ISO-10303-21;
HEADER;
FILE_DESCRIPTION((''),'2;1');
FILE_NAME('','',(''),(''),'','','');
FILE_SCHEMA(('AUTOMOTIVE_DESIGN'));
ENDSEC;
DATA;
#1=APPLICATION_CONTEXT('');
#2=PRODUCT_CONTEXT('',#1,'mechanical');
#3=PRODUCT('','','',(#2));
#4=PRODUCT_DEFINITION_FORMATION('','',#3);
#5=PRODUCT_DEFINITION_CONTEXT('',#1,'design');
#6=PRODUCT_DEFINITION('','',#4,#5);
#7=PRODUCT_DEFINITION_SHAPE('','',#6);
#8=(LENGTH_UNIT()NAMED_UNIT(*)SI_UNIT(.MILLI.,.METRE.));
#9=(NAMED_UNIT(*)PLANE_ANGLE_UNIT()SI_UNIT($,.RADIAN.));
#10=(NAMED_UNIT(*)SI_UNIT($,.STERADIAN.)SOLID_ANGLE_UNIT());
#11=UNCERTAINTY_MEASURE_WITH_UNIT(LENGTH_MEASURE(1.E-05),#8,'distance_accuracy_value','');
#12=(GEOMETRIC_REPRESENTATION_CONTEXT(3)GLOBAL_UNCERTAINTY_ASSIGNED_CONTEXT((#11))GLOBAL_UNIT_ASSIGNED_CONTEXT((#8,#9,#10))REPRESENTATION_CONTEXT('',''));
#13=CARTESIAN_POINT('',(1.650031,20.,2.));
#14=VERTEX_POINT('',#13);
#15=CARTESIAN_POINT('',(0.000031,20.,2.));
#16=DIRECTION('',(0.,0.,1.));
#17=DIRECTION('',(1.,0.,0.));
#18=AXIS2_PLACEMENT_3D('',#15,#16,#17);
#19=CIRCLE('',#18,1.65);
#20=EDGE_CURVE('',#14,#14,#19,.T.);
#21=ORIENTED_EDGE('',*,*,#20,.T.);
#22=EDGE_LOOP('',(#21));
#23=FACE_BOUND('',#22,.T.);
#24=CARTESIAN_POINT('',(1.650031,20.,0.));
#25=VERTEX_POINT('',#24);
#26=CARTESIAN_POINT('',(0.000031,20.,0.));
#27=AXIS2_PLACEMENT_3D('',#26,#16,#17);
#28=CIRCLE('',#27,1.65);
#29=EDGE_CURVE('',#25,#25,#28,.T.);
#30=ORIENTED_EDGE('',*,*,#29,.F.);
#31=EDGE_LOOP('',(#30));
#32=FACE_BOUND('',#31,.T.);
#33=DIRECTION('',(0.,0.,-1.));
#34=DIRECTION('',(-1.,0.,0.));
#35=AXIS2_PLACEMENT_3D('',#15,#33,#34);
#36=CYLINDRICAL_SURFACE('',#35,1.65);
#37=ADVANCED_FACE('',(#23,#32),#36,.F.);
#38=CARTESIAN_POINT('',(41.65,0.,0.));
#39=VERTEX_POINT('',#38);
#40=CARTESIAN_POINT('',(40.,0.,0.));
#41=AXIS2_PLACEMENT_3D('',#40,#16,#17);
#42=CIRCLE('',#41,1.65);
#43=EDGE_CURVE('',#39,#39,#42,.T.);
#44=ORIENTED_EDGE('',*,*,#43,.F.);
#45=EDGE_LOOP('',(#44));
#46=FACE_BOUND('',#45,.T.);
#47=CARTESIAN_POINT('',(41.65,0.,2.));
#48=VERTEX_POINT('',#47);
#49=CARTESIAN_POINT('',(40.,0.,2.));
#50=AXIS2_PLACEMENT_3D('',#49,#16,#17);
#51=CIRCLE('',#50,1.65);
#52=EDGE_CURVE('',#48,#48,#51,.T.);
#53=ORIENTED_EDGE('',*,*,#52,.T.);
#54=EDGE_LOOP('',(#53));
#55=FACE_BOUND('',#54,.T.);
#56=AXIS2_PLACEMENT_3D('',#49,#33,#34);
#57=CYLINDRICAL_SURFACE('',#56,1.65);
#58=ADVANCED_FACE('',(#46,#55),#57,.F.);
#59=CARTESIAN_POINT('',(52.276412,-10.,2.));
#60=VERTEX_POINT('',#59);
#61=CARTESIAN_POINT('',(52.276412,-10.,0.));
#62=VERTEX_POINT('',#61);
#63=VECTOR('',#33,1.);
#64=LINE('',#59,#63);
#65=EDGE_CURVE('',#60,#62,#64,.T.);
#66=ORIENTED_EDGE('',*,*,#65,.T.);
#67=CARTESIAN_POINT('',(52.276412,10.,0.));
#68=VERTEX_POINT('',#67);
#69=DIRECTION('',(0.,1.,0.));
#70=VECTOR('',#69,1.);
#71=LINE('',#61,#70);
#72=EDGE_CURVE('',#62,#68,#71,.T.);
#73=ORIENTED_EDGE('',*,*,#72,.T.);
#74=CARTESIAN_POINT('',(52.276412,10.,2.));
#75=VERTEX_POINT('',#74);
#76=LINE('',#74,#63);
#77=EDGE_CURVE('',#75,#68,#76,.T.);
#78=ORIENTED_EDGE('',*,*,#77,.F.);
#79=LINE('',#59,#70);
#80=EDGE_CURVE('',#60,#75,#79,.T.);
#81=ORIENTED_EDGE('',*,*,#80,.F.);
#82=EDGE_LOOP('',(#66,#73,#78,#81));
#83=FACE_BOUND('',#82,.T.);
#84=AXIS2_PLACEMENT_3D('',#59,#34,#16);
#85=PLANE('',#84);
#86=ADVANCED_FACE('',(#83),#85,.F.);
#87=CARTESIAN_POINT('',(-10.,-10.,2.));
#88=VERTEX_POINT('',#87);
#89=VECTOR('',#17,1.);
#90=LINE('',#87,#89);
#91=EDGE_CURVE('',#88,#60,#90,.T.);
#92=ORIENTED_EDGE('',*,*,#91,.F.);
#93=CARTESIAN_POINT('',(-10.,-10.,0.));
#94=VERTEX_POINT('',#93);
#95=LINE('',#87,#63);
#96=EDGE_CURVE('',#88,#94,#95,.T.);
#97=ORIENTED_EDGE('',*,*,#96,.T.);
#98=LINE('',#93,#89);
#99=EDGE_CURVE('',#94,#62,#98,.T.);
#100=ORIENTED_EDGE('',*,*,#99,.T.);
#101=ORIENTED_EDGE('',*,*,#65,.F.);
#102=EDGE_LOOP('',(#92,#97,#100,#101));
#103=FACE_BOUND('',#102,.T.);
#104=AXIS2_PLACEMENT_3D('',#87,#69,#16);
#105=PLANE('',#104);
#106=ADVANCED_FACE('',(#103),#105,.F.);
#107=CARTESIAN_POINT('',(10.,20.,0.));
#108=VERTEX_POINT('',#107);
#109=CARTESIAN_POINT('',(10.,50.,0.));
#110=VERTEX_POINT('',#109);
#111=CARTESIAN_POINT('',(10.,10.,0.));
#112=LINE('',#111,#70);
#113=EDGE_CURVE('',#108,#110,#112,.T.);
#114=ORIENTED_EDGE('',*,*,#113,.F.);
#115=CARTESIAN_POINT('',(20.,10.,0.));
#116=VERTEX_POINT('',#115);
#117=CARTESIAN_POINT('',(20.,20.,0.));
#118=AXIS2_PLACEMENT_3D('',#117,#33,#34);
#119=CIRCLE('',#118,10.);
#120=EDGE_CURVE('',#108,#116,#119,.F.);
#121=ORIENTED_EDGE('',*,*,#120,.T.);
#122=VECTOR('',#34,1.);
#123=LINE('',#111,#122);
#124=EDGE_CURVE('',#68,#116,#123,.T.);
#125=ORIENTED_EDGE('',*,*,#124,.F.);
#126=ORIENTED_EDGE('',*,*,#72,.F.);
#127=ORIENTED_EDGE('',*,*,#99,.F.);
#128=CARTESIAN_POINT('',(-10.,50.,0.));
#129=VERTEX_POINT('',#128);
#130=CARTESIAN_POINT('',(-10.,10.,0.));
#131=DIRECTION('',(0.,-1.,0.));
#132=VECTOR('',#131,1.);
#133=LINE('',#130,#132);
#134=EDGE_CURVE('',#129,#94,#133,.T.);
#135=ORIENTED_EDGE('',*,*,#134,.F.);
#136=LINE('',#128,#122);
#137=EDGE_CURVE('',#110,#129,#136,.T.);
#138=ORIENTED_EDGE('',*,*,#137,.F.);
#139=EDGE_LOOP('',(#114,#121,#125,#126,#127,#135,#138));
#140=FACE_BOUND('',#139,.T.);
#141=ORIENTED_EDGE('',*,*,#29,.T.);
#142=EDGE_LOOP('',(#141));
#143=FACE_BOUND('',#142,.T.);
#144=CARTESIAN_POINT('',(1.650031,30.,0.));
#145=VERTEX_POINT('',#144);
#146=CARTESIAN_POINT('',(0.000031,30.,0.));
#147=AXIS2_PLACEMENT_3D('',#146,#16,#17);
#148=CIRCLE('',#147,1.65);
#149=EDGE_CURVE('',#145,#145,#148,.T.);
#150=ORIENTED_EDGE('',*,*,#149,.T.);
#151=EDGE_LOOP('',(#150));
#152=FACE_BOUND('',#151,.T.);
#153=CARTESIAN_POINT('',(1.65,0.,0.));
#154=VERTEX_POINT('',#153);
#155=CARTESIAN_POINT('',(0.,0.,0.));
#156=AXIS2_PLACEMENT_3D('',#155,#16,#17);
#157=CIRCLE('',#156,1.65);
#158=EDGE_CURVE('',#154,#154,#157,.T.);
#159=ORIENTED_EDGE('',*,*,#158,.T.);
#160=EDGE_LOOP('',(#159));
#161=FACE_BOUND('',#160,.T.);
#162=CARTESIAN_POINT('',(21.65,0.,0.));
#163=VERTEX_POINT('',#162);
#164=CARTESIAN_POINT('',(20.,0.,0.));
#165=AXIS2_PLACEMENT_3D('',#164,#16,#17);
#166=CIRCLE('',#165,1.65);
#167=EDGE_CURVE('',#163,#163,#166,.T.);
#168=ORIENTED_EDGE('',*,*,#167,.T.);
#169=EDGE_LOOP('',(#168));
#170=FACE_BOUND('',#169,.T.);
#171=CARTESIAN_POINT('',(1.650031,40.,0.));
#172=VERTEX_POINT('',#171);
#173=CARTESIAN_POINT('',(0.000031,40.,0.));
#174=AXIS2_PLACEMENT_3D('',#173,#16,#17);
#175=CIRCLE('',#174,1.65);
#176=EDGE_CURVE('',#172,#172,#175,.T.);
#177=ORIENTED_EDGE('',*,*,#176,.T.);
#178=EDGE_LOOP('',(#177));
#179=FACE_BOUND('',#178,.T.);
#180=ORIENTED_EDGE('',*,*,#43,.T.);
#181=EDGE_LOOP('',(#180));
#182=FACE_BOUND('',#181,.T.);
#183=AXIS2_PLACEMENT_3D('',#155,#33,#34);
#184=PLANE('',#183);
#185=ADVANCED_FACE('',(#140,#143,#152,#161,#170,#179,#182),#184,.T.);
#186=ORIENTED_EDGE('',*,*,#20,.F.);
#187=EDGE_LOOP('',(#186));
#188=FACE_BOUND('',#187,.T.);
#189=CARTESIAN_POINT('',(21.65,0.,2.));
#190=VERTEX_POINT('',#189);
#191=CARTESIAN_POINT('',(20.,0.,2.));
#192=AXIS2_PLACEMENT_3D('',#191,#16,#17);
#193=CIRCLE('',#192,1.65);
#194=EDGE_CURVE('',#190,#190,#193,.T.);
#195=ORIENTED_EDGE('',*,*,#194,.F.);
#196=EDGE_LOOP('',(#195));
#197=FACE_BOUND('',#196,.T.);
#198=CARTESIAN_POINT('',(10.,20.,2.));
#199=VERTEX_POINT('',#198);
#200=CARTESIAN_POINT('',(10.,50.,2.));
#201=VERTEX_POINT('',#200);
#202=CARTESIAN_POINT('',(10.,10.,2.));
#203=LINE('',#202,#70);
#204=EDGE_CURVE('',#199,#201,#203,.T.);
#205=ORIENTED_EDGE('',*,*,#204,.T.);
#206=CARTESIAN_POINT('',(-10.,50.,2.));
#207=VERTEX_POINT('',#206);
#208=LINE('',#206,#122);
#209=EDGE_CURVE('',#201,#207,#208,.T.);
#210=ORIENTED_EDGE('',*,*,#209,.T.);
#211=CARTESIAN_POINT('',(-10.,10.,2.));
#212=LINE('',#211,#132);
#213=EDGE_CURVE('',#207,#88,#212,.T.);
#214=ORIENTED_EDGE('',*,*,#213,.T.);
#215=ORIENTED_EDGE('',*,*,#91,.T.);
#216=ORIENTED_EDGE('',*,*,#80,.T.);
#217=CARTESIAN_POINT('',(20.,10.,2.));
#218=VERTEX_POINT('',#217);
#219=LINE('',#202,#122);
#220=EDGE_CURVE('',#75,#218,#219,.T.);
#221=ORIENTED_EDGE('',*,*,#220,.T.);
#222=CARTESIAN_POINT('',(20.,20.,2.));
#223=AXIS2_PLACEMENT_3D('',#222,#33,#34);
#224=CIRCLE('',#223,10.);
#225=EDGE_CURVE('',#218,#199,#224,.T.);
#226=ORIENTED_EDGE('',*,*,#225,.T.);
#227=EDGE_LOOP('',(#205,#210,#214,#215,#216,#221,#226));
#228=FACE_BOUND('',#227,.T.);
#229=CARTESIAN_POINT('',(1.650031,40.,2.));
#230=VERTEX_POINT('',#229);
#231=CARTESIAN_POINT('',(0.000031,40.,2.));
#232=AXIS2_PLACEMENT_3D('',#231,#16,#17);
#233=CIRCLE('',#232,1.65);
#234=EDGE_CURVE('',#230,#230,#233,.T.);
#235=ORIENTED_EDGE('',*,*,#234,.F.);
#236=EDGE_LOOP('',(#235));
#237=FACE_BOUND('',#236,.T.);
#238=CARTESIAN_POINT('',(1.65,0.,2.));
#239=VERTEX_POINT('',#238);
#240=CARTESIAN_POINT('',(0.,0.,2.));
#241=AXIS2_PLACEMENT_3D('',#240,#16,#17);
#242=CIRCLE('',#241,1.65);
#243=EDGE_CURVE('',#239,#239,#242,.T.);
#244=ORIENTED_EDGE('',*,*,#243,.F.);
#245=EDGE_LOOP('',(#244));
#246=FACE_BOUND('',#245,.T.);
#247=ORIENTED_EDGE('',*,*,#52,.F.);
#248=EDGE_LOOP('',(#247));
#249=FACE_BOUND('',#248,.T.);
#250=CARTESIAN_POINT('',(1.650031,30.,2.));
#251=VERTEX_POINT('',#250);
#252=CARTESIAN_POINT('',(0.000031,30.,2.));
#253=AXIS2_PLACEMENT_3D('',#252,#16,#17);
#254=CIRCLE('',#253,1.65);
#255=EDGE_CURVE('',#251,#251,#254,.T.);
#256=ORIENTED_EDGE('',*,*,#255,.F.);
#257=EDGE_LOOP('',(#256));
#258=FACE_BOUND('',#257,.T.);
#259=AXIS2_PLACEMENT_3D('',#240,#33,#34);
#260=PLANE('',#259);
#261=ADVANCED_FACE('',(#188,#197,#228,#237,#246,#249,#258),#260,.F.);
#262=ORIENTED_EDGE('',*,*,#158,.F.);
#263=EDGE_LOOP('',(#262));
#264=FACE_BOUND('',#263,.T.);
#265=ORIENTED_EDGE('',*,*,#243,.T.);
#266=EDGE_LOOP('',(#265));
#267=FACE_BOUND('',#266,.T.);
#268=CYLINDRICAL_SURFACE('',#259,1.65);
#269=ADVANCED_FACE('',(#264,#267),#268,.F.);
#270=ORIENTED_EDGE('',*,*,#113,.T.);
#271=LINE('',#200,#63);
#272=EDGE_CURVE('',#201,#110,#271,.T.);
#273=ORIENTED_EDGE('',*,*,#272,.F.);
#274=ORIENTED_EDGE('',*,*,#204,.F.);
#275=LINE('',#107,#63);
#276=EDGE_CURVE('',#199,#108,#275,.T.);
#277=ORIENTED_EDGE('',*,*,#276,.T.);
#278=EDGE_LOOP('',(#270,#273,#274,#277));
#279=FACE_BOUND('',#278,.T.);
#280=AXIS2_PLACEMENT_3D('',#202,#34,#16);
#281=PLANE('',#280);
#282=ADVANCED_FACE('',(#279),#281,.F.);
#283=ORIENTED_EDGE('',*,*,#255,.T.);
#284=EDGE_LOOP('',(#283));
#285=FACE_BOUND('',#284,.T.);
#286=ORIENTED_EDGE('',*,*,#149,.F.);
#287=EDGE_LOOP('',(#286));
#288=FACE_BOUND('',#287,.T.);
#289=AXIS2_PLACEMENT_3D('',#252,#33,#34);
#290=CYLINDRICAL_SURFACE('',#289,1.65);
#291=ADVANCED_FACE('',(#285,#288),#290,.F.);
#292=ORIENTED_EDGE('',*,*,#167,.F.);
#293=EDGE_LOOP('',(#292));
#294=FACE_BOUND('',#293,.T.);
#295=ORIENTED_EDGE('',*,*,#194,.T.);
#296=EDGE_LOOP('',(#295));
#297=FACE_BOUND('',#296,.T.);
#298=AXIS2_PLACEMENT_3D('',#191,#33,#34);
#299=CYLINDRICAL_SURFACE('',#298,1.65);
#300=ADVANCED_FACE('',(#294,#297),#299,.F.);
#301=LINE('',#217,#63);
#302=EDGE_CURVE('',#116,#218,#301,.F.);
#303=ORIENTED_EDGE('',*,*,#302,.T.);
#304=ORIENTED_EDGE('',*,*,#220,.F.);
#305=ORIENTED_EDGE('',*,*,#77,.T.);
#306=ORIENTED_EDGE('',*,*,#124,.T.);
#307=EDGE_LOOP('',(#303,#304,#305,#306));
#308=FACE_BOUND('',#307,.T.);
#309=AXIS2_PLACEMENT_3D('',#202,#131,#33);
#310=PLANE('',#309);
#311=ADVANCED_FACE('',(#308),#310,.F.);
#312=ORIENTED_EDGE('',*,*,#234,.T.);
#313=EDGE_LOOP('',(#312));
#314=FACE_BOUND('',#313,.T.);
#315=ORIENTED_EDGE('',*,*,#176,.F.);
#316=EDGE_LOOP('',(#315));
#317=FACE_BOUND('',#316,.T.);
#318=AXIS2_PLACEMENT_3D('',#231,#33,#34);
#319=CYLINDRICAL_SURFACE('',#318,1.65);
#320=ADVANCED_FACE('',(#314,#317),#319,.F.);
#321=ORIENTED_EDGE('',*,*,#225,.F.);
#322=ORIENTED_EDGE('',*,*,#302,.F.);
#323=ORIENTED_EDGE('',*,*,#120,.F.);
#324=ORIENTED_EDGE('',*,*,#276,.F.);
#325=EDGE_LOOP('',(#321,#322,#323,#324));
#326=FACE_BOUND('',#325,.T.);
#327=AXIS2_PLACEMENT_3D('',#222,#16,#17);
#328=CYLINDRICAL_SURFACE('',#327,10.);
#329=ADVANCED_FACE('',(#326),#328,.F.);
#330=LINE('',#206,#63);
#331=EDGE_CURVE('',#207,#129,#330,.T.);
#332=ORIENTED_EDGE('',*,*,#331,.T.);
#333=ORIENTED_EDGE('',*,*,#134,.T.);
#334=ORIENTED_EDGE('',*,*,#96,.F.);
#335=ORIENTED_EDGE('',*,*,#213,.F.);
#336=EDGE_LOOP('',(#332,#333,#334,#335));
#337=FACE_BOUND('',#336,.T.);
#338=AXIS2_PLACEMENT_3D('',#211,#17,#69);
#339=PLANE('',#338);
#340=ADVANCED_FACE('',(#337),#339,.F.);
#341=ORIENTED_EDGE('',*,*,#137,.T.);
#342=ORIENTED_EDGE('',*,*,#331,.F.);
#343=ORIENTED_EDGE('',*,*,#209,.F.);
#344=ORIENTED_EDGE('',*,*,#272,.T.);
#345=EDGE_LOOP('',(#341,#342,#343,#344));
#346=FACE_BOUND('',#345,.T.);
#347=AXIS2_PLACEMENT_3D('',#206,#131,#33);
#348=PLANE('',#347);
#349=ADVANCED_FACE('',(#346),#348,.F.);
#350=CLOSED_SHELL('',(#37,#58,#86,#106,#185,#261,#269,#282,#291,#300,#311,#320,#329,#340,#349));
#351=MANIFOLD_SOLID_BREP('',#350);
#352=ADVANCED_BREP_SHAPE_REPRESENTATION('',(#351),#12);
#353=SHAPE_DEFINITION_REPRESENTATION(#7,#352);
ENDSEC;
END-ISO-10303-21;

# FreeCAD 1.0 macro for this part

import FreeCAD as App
import Part
import Sketcher


def edges_at(feature, points):
    """Names of the edges that pass closest to the given points."""
    edges = feature.Shape.Edges
    near = lambda p: min(range(len(edges)), key=lambda i: edges[i].distToShape(Part.Vertex(*p))[0])
    return sorted({f"Edge{near(p) + 1}" for p in points})


def add_polygon(sketch, points):
    """Adds a closed chain of lines whose ends are joined by coincident constraints."""
    first, n = sketch.GeometryCount, len(points)
    for a, b in zip(points, points[1:] + points[:1]):
        sketch.addGeometry(Part.LineSegment(App.Vector(*a, 0), App.Vector(*b, 0)), False)
    for i in range(n):
        sketch.addConstraint(Sketcher.Constraint("Coincident", first + i, 2, first + (i + 1) % n, 1))

doc = App.newDocument("Part")
body = doc.addObject("PartDesign::Body", "Body")

# Sketch on XY plane
sketch1 = body.newObject("Sketcher::SketchObject", "Sketch")
sketch1.AttachmentSupport = (doc.getObject("XY_Plane"), [""])
sketch1.MapMode = "FlatFace"
add_polygon(sketch1, [(52.276412, 10), (10, 10), (10, 50), (-10, 50), (-10, -10), (52.276412, -10)])  # lines 0-5
sketch1.addGeometry(Part.Circle(App.Vector(40, 0, 0), App.Vector(0, 0, 1), 1.65), False)  # 6
sketch1.addGeometry(Part.Circle(App.Vector(20, 0, 0), App.Vector(0, 0, 1), 1.65), False)  # 7
sketch1.addGeometry(Part.Circle(App.Vector(0, 0, 0), App.Vector(0, 0, 1), 1.65), False)  # 8
sketch1.addGeometry(Part.Circle(App.Vector(0.000031, 20, 0), App.Vector(0, 0, 1), 1.65), False)  # 9
sketch1.addGeometry(Part.Circle(App.Vector(0.000031, 30, 0), App.Vector(0, 0, 1), 1.65), False)  # 10
sketch1.addGeometry(Part.Circle(App.Vector(0.000031, 40, 0), App.Vector(0, 0, 1), 1.65), False)  # 11
sketch1.addConstraint([
    Sketcher.Constraint("Horizontal", 0),
    Sketcher.Constraint("Vertical", 1),
    Sketcher.Constraint("Horizontal", 2),
    Sketcher.Constraint("Vertical", 3),
    Sketcher.Constraint("Horizontal", 4),
    Sketcher.Constraint("Vertical", 5),
    Sketcher.Constraint("Coincident", 8, 3, -1, 1),
    Sketcher.Constraint("Equal", 6, 7),
    Sketcher.Constraint("Equal", 7, 8),
    Sketcher.Constraint("Equal", 8, 9),
    Sketcher.Constraint("Equal", 9, 10),
    Sketcher.Constraint("Equal", 10, 11),
    Sketcher.Constraint("Symmetric", 0, 2, 3, 2, -1, 1),
    Sketcher.Constraint("PointOnObject", 6, 3, -1),
    Sketcher.Constraint("PointOnObject", 7, 3, -1),
    Sketcher.Constraint("Vertical", 9, 3, 10, 3),
    Sketcher.Constraint("Vertical", 10, 3, 11, 3),
    Sketcher.Constraint("Equal", 2, 5),
    Sketcher.Constraint("Diameter", 6, 3.3),
    Sketcher.Constraint("DistanceX", 2, 2, 2, 1, 20.0),
    Sketcher.Constraint("DistanceY", 1, 1, 1, 2, 40.0),
    Sketcher.Constraint("DistanceX", -1, 1, 6, 3, 40.0),
    Sketcher.Constraint("DistanceX", -1, 1, 7, 3, 20.0),
    Sketcher.Constraint("DistanceY", -1, 1, 9, 3, 20.0),
    Sketcher.Constraint("DistanceY", -1, 1, 10, 3, 30.0),
    Sketcher.Constraint("DistanceY", -1, 1, 11, 3, 40.0),
    Sketcher.Constraint("DistanceX", 0, 2, 0, 1, 42.276412),
    Sketcher.Constraint("DistanceX", 9, 3, 7, 3, 19.999969),
])
pad1 = body.newObject("PartDesign::Pad", "Pad")
pad1.Profile = sketch1
pad1.Length = 2
doc.recompute()

fillet = body.newObject("PartDesign::Fillet", "Fillet")
fillet.Base = (pad1, edges_at(pad1, [(10, 10, 1)]))
fillet.Radius = 10

doc.recompute()
